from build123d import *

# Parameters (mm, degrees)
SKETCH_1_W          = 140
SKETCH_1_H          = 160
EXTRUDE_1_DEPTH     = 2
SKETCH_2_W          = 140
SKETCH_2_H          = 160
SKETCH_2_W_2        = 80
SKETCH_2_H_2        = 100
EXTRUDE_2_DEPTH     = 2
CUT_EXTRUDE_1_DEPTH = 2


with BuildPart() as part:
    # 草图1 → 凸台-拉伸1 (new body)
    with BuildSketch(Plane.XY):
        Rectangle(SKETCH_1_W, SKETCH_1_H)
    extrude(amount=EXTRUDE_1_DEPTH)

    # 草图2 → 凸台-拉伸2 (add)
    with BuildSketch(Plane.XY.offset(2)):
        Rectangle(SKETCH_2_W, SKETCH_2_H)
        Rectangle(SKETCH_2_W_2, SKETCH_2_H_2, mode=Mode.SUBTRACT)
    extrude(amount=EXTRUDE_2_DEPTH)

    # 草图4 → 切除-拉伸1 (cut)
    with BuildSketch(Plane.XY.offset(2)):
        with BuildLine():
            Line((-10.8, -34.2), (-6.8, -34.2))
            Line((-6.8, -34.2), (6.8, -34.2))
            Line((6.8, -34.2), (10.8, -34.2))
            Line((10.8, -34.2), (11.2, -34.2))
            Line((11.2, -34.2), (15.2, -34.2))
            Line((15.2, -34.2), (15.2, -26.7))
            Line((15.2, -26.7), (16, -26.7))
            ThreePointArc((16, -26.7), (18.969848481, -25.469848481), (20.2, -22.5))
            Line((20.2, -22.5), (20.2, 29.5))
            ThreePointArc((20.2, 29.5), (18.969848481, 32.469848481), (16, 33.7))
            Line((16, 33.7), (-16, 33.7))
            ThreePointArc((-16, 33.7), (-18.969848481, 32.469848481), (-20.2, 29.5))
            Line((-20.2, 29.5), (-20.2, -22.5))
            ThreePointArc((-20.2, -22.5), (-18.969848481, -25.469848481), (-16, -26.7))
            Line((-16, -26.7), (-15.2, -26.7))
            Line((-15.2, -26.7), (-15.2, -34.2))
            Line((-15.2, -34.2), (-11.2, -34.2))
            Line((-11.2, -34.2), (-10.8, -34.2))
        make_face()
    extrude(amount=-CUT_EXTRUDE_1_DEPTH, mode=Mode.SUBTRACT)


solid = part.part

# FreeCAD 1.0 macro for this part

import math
import FreeCAD as App
import Part
import Sketcher

V = App.Vector


def add_polygon(sketch, points):
    """Adds a closed chain of lines whose ends are joined by coincident constraints."""
    first, n = sketch.GeometryCount, len(points)
    for a, b in zip(points, points[1:] + points[:1]):
        sketch.addGeometry(Part.LineSegment(App.Vector(*a, 0), App.Vector(*b, 0)), False)
    for i in range(n):
        sketch.addConstraint(Sketcher.Constraint("Coincident", first + i, 2, first + (i + 1) % n, 1))

doc = App.newDocument("Part")
body = doc.addObject("PartDesign::Body", "Body")

sketch1 = doc.addObject("Sketcher::SketchObject", "Sketch")
body.addObject(sketch1)
sketch1.AttachmentSupport = (doc.XY_Plane, [""])
sketch1.MapMode = "FlatFace"
add_polygon(sketch1, [(-70, 80), (-70, -80), (70, -80), (70, 80)])
sketch1.addConstraint([
    Sketcher.Constraint("Vertical", 0),
    Sketcher.Constraint("Horizontal", 1),
    Sketcher.Constraint("Vertical", 2),
    Sketcher.Constraint("Horizontal", 3),
    Sketcher.Constraint("Symmetric", 0, 2, 2, 2, -1, 1),
    Sketcher.Constraint("DistanceX", 1, 1, 1, 2, 140.0),
    Sketcher.Constraint("DistanceY", 0, 2, 0, 1, 160.0),
])
pad1 = doc.addObject("PartDesign::Pad", "Pad")
body.addObject(pad1)
pad1.Profile = sketch1
pad1.Length = 2

sketch2 = doc.addObject("Sketcher::SketchObject", "Sketch001")
body.addObject(sketch2)
sketch2.AttachmentSupport = (doc.XY_Plane, [""])
sketch2.MapMode = "FlatFace"
sketch2.AttachmentOffset = App.Placement(V(0, 0, 2), App.Rotation())
add_polygon(sketch2, [(-70, 80), (-70, -80), (70, -80), (70, 80)])
add_polygon(sketch2, [(40, -50), (-40, -50), (-40, 50), (40, 50)])
sketch2.addConstraint([
    Sketcher.Constraint("Vertical", 0),
    Sketcher.Constraint("Horizontal", 1),
    Sketcher.Constraint("Vertical", 2),
    Sketcher.Constraint("Horizontal", 3),
    Sketcher.Constraint("Horizontal", 4),
    Sketcher.Constraint("Vertical", 5),
    Sketcher.Constraint("Horizontal", 6),
    Sketcher.Constraint("Vertical", 7),
    Sketcher.Constraint("Symmetric", 0, 2, 2, 2, -1, 1),
    Sketcher.Constraint("Symmetric", 4, 2, 6, 2, -1, 1),
    Sketcher.Constraint("DistanceX", 1, 1, 1, 2, 140.0),
    Sketcher.Constraint("DistanceX", 4, 2, 4, 1, 80.0),
    Sketcher.Constraint("DistanceY", 0, 2, 0, 1, 160.0),
    Sketcher.Constraint("DistanceY", 5, 1, 5, 2, 100.0),
])
pad2 = doc.addObject("PartDesign::Pad", "Pad001")
body.addObject(pad2)
pad2.Profile = sketch2
pad2.Length = 2

sketch3 = doc.addObject("Sketcher::SketchObject", "Sketch002")
body.addObject(sketch3)
sketch3.AttachmentSupport = (doc.XY_Plane, [""])
sketch3.MapMode = "FlatFace"
sketch3.AttachmentOffset = App.Placement(V(0, 0, 2), App.Rotation())
sketch3.addGeometry([
    Part.LineSegment(V(15.2, -34.2, 0), V(15.2, -26.7, 0)),
    Part.LineSegment(V(15.2, -26.7, 0), V(16, -26.7, 0)),
    Part.ArcOfCircle(Part.Circle(V(16, -22.5, 0), V(0, 0, 1), 4.2), math.radians(-90), math.radians(0)),
    Part.LineSegment(V(20.2, -22.5, 0), V(20.2, 29.5, 0)),
    Part.ArcOfCircle(Part.Circle(V(16, 29.5, 0), V(0, 0, 1), 4.2), math.radians(0), math.radians(90)),
    Part.LineSegment(V(16, 33.7, 0), V(-16, 33.7, 0)),
    Part.ArcOfCircle(Part.Circle(V(-16, 29.5, 0), V(0, 0, 1), 4.2), math.radians(90), math.radians(180)),
    Part.LineSegment(V(-20.2, 29.5, 0), V(-20.2, -22.5, 0)),
    Part.ArcOfCircle(Part.Circle(V(-16, -22.5, 0), V(0, 0, 1), 4.2), math.radians(180), math.radians(270)),
    Part.LineSegment(V(-16, -26.7, 0), V(-15.2, -26.7, 0)),
    Part.LineSegment(V(-15.2, -26.7, 0), V(-15.2, -34.2, 0)),
    Part.LineSegment(V(-15.2, -34.2, 0), V(15.2, -34.2, 0)),
], False)
sketch3.addConstraint([
    Sketcher.Constraint("Coincident", 0, 2, 1, 1),
    Sketcher.Constraint("Tangent", 1, 2, 2, 1),
    Sketcher.Constraint("Tangent", 2, 2, 3, 1),
    Sketcher.Constraint("Tangent", 3, 2, 4, 1),
    Sketcher.Constraint("Tangent", 4, 2, 5, 1),
    Sketcher.Constraint("Tangent", 5, 2, 6, 1),
    Sketcher.Constraint("Tangent", 6, 2, 7, 1),
    Sketcher.Constraint("Tangent", 7, 2, 8, 1),
    Sketcher.Constraint("Tangent", 8, 2, 9, 1),
    Sketcher.Constraint("Coincident", 9, 2, 10, 1),
    Sketcher.Constraint("Coincident", 10, 2, 11, 1),
    Sketcher.Constraint("Coincident", 11, 2, 0, 1),
    Sketcher.Constraint("Vertical", 0),
    Sketcher.Constraint("Horizontal", 1),
    Sketcher.Constraint("Vertical", 3),
    Sketcher.Constraint("Horizontal", 5),
    Sketcher.Constraint("Vertical", 7),
    Sketcher.Constraint("Horizontal", 9),
    Sketcher.Constraint("Vertical", 10),
    Sketcher.Constraint("Horizontal", 11),
    Sketcher.Constraint("Equal", 2, 4),
    Sketcher.Constraint("Equal", 4, 6),
    Sketcher.Constraint("Equal", 6, 8),
    Sketcher.Constraint("Symmetric", 2, 3, 8, 3, -2),
    Sketcher.Constraint("Equal", 1, 9),
    Sketcher.Constraint("Radius", 2, 4.2),
    Sketcher.Constraint("DistanceX", 5, 2, 5, 1, 32.0),
    Sketcher.Constraint("DistanceY", 3, 1, 3, 2, 52.0),
    Sketcher.Constraint("DistanceX", 1, 1, 1, 2, 0.8),
    Sketcher.Constraint("DistanceY", 0, 1, 0, 2, 7.5),
    Sketcher.Constraint("DistanceY", 2, 3, -1, 1, 22.5),
])
pocket1 = doc.addObject("PartDesign::Pocket", "Pocket")
body.addObject(pocket1)
pocket1.Profile = sketch3
pocket1.Length = 2

doc.recompute()
